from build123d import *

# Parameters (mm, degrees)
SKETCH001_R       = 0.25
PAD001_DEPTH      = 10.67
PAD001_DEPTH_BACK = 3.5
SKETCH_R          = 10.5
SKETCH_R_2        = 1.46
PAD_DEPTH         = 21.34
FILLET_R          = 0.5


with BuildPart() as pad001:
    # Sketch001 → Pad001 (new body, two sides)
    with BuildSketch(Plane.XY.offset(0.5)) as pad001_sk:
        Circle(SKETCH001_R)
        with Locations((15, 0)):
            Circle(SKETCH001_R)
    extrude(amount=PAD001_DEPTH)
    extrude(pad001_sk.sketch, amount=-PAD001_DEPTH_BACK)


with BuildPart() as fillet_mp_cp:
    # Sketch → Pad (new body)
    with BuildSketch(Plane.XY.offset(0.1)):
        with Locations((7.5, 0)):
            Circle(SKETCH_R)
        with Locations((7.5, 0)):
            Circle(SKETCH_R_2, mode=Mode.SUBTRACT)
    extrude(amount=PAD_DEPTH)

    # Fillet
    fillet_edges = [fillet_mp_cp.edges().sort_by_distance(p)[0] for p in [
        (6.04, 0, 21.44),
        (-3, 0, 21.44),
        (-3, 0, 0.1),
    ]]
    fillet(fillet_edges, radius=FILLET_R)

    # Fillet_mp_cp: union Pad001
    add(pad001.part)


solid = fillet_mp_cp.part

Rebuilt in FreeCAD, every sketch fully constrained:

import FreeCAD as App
import Part
import Sketcher
from FreeCAD import Vector


def edges_at(feature, points):
    """Names of the edges that pass closest to the given points."""
    edges = feature.Shape.Edges
    near = lambda p: min(range(len(edges)), key=lambda i: edges[i].distToShape(Part.Vertex(*p))[0])
    return sorted({f"Edge{near(p) + 1}" for p in points})

doc = App.newDocument("Part")
body = doc.addObject("PartDesign::Body", "Body")
body.AllowCompound = True

# Sketch on XY plane
sketch1 = doc.addObject("Sketcher::SketchObject", "Sketch")
body.addObject(sketch1)
sketch1.AttachmentSupport = (doc.XY_Plane, [""])
sketch1.MapMode = "FlatFace"
sketch1.AttachmentOffset = App.Placement(Vector(0, 0, 0.5), App.Rotation())
sketch1.addGeometry([
    Part.Circle(Vector(0, 0, 0), Vector(0, 0, 1), 0.25),
    Part.Circle(Vector(15, 0, 0), Vector(0, 0, 1), 0.25),
], False)
sketch1.addConstraint([
    Sketcher.Constraint("Coincident", 0, 3, -1, 1),
    Sketcher.Constraint("Equal", 0, 1),
    Sketcher.Constraint("PointOnObject", 1, 3, -1),
    Sketcher.Constraint("Diameter", 0, 0.5),
    Sketcher.Constraint("DistanceX", -1, 1, 1, 3, 15.0),
])
pad1 = doc.addObject("PartDesign::Pad", "Pad")
body.addObject(pad1)
pad1.Profile = sketch1
pad1.Type = "TwoLengths"
pad1.Length = 10.67
pad1.Length2 = 3.5
body2 = doc.addObject("PartDesign::Body", "Body001")

# Sketch on XY plane
sketch2 = doc.addObject("Sketcher::SketchObject", "Sketch001")
body2.addObject(sketch2)
sketch2.AttachmentSupport = (doc.getObject("XY_Plane001"), [""])
sketch2.MapMode = "FlatFace"
sketch2.AttachmentOffset = App.Placement(Vector(0, 0, 0.1), App.Rotation())
sketch2.addGeometry([
    Part.Circle(Vector(7.5, 0, 0), Vector(0, 0, 1), 10.5),
    Part.Circle(Vector(7.5, 0, 0), Vector(0, 0, 1), 1.46),
], False)
sketch2.addConstraint([
    Sketcher.Constraint("Coincident", 1, 3, 0, 3),
    Sketcher.Constraint("PointOnObject", 0, 3, -1),
    Sketcher.Constraint("Diameter", 0, 21.0),
    Sketcher.Constraint("Diameter", 1, 2.92),
    Sketcher.Constraint("DistanceX", -1, 1, 0, 3, 7.5),
])
pad2 = doc.addObject("PartDesign::Pad", "Pad001")
body2.addObject(pad2)
pad2.Profile = sketch2
pad2.Length = 21.34
doc.recompute()

fillet = doc.addObject("PartDesign::Fillet", "Fillet")
body2.addObject(fillet)
fillet.Base = (pad2, edges_at(pad2, [(6.04, 0, 21.44), (-3, 0, 21.44), (-3, 0, 0.1)]))
fillet.Radius = 0.5
doc.recompute()

boolean = doc.addObject("PartDesign::Boolean", "Boolean")
body2.addObject(boolean)
boolean.Type = "Fuse"
boolean.addObjects([body])

doc.recompute()
